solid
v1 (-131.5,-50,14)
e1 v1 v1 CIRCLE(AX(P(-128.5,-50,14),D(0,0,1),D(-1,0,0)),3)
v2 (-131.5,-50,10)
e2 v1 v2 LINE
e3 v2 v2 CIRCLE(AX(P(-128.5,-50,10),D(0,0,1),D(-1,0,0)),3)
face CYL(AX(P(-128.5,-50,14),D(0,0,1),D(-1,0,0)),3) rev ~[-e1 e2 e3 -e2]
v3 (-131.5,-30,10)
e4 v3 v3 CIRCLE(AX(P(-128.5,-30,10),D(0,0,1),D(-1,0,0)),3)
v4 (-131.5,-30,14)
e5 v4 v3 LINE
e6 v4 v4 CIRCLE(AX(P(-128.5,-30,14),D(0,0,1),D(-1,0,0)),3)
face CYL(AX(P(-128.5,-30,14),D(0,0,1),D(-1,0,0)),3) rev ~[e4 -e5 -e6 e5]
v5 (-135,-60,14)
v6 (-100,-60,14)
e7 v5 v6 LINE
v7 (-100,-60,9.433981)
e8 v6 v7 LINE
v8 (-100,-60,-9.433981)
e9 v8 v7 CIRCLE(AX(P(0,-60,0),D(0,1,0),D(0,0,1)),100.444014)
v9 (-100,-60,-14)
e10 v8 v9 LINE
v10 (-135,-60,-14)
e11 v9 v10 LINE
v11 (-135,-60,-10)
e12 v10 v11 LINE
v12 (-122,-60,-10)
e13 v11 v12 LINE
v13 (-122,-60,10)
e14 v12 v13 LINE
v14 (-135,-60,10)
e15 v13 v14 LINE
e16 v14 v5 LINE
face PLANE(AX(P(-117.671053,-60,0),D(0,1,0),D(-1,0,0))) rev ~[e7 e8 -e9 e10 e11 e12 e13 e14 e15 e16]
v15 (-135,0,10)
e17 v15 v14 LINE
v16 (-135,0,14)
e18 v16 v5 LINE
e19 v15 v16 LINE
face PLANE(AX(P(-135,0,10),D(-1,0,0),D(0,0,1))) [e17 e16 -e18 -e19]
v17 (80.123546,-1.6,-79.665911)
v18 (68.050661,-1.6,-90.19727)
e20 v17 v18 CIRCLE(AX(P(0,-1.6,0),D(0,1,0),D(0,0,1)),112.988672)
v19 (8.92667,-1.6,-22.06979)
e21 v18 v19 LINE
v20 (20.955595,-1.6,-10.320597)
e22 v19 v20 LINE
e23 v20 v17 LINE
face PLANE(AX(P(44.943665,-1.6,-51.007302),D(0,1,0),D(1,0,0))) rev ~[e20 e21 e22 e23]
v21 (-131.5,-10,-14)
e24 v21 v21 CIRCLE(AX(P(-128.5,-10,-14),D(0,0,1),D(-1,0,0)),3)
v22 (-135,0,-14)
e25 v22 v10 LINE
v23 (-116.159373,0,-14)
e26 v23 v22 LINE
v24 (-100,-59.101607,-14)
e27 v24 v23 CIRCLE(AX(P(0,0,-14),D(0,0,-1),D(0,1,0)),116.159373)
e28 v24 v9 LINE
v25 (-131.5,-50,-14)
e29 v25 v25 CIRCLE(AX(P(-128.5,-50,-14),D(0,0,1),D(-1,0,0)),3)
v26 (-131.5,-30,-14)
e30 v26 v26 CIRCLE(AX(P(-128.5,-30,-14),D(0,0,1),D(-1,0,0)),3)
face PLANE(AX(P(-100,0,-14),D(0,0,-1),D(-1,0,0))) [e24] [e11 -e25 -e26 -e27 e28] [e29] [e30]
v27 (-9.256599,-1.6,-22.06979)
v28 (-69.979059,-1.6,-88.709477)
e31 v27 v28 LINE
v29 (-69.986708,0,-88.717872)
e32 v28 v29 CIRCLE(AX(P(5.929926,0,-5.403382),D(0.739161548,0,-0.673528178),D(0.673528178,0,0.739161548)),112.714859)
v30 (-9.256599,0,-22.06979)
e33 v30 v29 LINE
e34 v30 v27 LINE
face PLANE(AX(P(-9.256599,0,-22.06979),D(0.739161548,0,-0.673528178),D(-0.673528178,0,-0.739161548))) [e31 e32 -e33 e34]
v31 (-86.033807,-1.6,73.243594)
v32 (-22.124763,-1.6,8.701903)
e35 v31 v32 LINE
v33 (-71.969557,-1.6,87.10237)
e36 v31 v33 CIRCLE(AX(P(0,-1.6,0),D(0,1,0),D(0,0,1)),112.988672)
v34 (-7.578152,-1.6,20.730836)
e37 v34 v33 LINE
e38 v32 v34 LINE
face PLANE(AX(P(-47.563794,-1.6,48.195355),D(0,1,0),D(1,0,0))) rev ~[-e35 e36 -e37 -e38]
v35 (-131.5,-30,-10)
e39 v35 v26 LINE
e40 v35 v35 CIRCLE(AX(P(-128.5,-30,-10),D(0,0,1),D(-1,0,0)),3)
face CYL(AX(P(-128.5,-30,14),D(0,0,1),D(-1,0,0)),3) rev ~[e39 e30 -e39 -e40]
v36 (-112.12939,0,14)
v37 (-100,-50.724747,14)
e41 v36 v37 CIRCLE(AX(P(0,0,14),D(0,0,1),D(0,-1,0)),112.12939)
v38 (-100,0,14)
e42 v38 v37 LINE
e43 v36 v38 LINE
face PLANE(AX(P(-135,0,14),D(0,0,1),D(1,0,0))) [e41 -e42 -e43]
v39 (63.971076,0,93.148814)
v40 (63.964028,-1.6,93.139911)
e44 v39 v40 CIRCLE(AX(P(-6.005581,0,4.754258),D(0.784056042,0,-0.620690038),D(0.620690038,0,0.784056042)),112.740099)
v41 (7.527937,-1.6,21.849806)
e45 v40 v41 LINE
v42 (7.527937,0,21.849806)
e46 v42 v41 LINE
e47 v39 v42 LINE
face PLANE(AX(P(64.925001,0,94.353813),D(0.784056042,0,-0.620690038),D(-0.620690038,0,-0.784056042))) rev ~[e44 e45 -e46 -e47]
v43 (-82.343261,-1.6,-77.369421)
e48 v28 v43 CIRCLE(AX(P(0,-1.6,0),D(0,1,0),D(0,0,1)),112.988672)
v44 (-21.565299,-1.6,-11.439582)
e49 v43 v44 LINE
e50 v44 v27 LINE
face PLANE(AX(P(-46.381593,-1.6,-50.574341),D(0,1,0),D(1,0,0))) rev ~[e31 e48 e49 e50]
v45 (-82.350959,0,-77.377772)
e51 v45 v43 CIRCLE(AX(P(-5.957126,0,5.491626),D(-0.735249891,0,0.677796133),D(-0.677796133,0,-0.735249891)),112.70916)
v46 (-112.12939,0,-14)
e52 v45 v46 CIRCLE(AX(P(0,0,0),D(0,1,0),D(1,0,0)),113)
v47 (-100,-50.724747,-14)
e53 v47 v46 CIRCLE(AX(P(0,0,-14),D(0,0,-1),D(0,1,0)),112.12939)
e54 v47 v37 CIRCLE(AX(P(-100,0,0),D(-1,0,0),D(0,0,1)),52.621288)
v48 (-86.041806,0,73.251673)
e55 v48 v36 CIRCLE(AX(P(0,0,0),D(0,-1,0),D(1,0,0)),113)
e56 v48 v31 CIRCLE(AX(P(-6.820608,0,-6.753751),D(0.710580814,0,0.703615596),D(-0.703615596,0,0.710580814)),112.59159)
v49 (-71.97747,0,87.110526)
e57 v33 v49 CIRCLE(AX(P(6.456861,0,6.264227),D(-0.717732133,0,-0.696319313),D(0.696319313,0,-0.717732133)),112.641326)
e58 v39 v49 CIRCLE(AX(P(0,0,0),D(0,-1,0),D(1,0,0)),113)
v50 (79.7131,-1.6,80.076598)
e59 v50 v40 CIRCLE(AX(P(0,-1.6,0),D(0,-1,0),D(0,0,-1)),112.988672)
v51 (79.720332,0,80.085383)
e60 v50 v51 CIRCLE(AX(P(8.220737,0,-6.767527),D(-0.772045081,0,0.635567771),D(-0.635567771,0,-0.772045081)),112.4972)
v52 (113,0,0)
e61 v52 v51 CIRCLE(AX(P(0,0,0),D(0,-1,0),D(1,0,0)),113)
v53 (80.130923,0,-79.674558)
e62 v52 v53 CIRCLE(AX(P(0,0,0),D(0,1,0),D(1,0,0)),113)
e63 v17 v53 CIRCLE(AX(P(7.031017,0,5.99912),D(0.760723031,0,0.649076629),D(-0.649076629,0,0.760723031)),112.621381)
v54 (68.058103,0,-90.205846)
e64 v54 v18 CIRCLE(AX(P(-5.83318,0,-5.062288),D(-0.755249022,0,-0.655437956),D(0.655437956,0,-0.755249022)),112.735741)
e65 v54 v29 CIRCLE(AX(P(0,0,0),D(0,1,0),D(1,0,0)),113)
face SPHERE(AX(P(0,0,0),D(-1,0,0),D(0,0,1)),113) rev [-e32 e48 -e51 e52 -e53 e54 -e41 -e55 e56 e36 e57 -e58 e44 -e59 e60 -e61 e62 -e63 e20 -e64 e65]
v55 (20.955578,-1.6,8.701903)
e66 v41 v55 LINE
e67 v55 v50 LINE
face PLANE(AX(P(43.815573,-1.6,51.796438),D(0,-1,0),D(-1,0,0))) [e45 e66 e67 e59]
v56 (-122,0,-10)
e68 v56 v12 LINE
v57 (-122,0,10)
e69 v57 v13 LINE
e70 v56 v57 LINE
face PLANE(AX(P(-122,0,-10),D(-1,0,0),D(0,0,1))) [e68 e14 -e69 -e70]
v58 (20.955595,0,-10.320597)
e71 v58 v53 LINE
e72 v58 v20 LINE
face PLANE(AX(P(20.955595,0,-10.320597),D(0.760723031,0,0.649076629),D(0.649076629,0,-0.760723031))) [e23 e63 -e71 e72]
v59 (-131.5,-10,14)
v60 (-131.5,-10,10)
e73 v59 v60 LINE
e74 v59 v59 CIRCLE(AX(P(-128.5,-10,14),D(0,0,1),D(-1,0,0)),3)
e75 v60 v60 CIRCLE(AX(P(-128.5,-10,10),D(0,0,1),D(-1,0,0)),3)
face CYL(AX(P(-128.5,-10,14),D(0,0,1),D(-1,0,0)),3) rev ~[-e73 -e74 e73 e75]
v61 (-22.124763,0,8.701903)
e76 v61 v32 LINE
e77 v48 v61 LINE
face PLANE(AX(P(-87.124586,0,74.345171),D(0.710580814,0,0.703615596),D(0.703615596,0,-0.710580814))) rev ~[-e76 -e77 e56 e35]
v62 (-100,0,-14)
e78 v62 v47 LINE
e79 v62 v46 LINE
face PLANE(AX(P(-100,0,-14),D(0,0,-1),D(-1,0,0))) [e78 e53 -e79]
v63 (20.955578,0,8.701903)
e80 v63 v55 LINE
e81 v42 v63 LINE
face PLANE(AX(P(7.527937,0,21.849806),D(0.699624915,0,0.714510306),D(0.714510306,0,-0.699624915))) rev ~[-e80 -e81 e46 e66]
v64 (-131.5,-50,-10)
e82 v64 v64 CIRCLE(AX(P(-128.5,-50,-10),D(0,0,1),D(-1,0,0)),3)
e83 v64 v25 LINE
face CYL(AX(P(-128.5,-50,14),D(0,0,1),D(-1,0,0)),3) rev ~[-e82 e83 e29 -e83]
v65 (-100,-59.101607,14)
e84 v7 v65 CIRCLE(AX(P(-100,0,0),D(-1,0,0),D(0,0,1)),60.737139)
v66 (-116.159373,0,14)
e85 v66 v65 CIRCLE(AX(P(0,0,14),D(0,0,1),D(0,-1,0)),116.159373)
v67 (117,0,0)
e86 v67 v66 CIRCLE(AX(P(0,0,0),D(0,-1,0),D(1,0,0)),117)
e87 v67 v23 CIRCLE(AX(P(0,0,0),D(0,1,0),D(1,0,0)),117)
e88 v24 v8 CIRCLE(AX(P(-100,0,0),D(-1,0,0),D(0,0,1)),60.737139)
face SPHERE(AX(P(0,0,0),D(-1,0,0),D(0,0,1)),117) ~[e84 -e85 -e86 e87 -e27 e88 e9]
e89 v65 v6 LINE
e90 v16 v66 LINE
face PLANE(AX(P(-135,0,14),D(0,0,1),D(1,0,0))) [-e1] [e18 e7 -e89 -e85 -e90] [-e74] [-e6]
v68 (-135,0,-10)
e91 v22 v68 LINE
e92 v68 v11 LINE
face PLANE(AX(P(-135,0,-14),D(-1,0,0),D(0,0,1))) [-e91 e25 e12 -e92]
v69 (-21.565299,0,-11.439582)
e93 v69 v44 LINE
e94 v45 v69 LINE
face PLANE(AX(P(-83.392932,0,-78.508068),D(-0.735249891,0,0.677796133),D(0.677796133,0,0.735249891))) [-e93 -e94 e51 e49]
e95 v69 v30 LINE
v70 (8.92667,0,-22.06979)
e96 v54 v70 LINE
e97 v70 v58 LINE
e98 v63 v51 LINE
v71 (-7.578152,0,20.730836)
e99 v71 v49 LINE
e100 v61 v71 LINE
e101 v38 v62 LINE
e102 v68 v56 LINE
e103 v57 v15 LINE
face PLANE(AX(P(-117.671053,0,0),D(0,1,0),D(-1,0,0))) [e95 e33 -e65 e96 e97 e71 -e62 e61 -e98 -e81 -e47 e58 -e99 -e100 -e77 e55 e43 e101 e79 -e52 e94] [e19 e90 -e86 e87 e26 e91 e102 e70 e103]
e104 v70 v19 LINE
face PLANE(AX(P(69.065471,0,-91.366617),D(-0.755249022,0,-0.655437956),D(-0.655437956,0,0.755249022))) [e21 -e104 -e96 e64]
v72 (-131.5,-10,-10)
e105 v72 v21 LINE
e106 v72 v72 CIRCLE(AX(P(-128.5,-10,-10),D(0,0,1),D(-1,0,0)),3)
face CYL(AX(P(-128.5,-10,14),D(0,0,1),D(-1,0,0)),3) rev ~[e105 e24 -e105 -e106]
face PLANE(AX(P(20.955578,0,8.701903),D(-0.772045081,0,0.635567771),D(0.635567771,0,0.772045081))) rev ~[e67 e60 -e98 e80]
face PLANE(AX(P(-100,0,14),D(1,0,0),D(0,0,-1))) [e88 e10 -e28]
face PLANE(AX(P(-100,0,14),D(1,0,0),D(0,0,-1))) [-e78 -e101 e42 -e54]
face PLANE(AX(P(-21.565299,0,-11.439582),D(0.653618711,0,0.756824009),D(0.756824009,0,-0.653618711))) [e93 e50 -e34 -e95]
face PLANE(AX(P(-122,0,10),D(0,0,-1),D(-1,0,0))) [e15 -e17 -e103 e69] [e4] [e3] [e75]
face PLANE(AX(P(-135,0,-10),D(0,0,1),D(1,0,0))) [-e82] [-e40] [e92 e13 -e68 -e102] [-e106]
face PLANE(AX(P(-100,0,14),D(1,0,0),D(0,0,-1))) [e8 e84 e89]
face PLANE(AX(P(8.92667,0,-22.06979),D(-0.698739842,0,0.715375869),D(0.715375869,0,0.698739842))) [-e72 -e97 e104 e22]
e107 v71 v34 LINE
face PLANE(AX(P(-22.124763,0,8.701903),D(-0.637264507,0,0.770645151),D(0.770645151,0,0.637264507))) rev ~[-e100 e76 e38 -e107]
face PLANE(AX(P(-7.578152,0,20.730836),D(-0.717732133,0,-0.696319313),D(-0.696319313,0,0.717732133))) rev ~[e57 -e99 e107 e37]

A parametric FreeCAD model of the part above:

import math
import FreeCAD as App
import Part
import Sketcher
Q = App.Units.Quantity

doc = App.newDocument("Part")
body = doc.addObject("PartDesign::Body", "Body")

# Sketch on XZ plane
sketch1 = doc.addObject("Sketcher::SketchObject", "Sketch")
body.addObject(sketch1)
sketch1.AttachmentSupport = (doc.XZ_Plane, [""])
sketch1.MapMode = "FlatFace"
sketch1.addGeometry(Part.ArcOfCircle(Part.Circle(App.Vector(0, 0, 0), App.Vector(0, 0, 1), 117), math.radians(0), math.radians(180)), False)
sketch1.addGeometry(Part.LineSegment(App.Vector(-117, 0, 0), App.Vector(-113, 0, 0)), False)
sketch1.addGeometry(Part.ArcOfCircle(Part.Circle(App.Vector(0, 0, 0), App.Vector(0, 0, 1), 113), math.radians(0), math.radians(180)), False)
sketch1.addGeometry(Part.LineSegment(App.Vector(113, 0, 0), App.Vector(117, 0, 0)), False)
sketch1.addConstraint(Sketcher.Constraint("Coincident", 0, 2, 1, 1))
sketch1.addConstraint(Sketcher.Constraint("Coincident", 1, 2, 2, 2))
sketch1.addConstraint(Sketcher.Constraint("Coincident", 2, 1, 3, 1))
sketch1.addConstraint(Sketcher.Constraint("Coincident", 3, 2, 0, 1))
sketch1.addConstraint(Sketcher.Constraint("Horizontal", 1))
sketch1.addConstraint(Sketcher.Constraint("Horizontal", 3))
sketch1.addConstraint(Sketcher.Constraint("Coincident", 0, 3, -1, 1))
sketch1.addConstraint(Sketcher.Constraint("Coincident", 2, 3, -1, 1))
sketch1.addConstraint(Sketcher.Constraint("PointOnObject", 0, 2, -1))
sketch1.addConstraint(Sketcher.Constraint("PointOnObject", 2, 1, -1))
sketch1.addConstraint(Sketcher.Constraint("Radius", 0, Q("117 mm")))
sketch1.addConstraint(Sketcher.Constraint("Radius", 2, Q("113 mm")))
revolution = doc.addObject("PartDesign::Revolution", "Revolution")
body.addObject(revolution)
revolution.Profile = sketch1
revolution.ReferenceAxis = (sketch1, ["H_Axis"])
revolution.Angle = 180

# Sketch on XZ plane
sketch2 = doc.addObject("Sketcher::SketchObject", "Sketch001")
body.addObject(sketch2)
sketch2.AttachmentSupport = (doc.XZ_Plane, [""])
sketch2.MapMode = "FlatFace"
sketch2.addGeometry(Part.LineSegment(App.Vector(-100, -14, 0), App.Vector(-100, 14, 0)), False)
sketch2.addGeometry(Part.LineSegment(App.Vector(-100, 14, 0), App.Vector(-135, 14, 0)), False)
sketch2.addGeometry(Part.LineSegment(App.Vector(-135, 14, 0), App.Vector(-135, 10, 0)), False)
sketch2.addGeometry(Part.LineSegment(App.Vector(-135, 10, 0), App.Vector(-122, 10, 0)), False)
sketch2.addGeometry(Part.LineSegment(App.Vector(-122, 10, 0), App.Vector(-122, -10, 0)), False)
sketch2.addGeometry(Part.LineSegment(App.Vector(-122, -10, 0), App.Vector(-135, -10, 0)), False)
sketch2.addGeometry(Part.LineSegment(App.Vector(-135, -10, 0), App.Vector(-135, -14, 0)), False)
sketch2.addGeometry(Part.LineSegment(App.Vector(-135, -14, 0), App.Vector(-100, -14, 0)), False)
sketch2.addConstraint(Sketcher.Constraint("Coincident", 0, 2, 1, 1))
sketch2.addConstraint(Sketcher.Constraint("Coincident", 1, 2, 2, 1))
sketch2.addConstraint(Sketcher.Constraint("Coincident", 2, 2, 3, 1))
sketch2.addConstraint(Sketcher.Constraint("Coincident", 3, 2, 4, 1))
sketch2.addConstraint(Sketcher.Constraint("Coincident", 4, 2, 5, 1))
sketch2.addConstraint(Sketcher.Constraint("Coincident", 5, 2, 6, 1))
sketch2.addConstraint(Sketcher.Constraint("Coincident", 6, 2, 7, 1))
sketch2.addConstraint(Sketcher.Constraint("Coincident", 7, 2, 0, 1))
sketch2.addConstraint(Sketcher.Constraint("Vertical", 0))
sketch2.addConstraint(Sketcher.Constraint("Horizontal", 1))
sketch2.addConstraint(Sketcher.Constraint("Vertical", 2))
sketch2.addConstraint(Sketcher.Constraint("Horizontal", 3))
sketch2.addConstraint(Sketcher.Constraint("Vertical", 4))
sketch2.addConstraint(Sketcher.Constraint("Horizontal", 5))
sketch2.addConstraint(Sketcher.Constraint("Vertical", 6))
sketch2.addConstraint(Sketcher.Constraint("Horizontal", 7))
sketch2.addConstraint(Sketcher.Constraint("Symmetric", 2, 2, 5, 2, -1))
sketch2.addConstraint(Sketcher.Constraint("Equal", 2, 6))
sketch2.addConstraint(Sketcher.Constraint("DistanceX", 1, 2, 1, 1, Q("35 mm")))
sketch2.addConstraint(Sketcher.Constraint("DistanceX", 3, 1, 3, 2, Q("13 mm")))
sketch2.addConstraint(Sketcher.Constraint("DistanceY", 0, 1, 0, 2, Q("28 mm")))
sketch2.addConstraint(Sketcher.Constraint("DistanceY", 2, 2, 2, 1, Q("4 mm")))
sketch2.addConstraint(Sketcher.Constraint("DistanceX", 0, 2, -1, 1, Q("100 mm")))
pad1 = doc.addObject("PartDesign::Pad", "Pad")
body.addObject(pad1)
pad1.Profile = sketch2
pad1.Length = 60

# Sketch on XY plane
sketch3 = doc.addObject("Sketcher::SketchObject", "Sketch002")
body.addObject(sketch3)
sketch3.AttachmentSupport = (doc.XY_Plane, [""])
sketch3.MapMode = "FlatFace"
sketch3.AttachmentOffset = App.Placement(App.Vector(0, 0, 14), App.Rotation())
sketch3.addGeometry(Part.Circle(App.Vector(-128.5, -10, 0), App.Vector(0, 0, 1), 3), False)
sketch3.addGeometry(Part.Circle(App.Vector(-128.5, -30, 0), App.Vector(0, 0, 1), 3), False)
sketch3.addGeometry(Part.Circle(App.Vector(-128.5, -50, 0), App.Vector(0, 0, 1), 3), False)
sketch3.addConstraint(Sketcher.Constraint("Equal", 0, 1))
sketch3.addConstraint(Sketcher.Constraint("Equal", 1, 2))
sketch3.addConstraint(Sketcher.Constraint("Vertical", 0, 3, 1, 3))
sketch3.addConstraint(Sketcher.Constraint("Vertical", 1, 3, 2, 3))
sketch3.addConstraint(Sketcher.Constraint("Diameter", 0, Q("6 mm")))
sketch3.addConstraint(Sketcher.Constraint("DistanceY", 0, 3, -1, 1, Q("10 mm")))
sketch3.addConstraint(Sketcher.Constraint("DistanceY", 1, 3, -1, 1, Q("30 mm")))
sketch3.addConstraint(Sketcher.Constraint("DistanceY", 2, 3, -1, 1, Q("50 mm")))
sketch3.addConstraint(Sketcher.Constraint("DistanceX", 0, 3, -1, 1, Q("128.5 mm")))
pocket1 = doc.addObject("PartDesign::Pocket", "Pocket")
body.addObject(pocket1)
pocket1.Profile = sketch3
pocket1.Type = "ThroughAll"

# Sketch on XZ plane
sketch4 = doc.addObject("Sketcher::SketchObject", "Sketch003")
body.addObject(sketch4)
sketch4.AttachmentSupport = (doc.XZ_Plane, [""])
sketch4.MapMode = "FlatFace"
sketch4.addGeometry(Part.ArcOfCircle(Part.Circle(App.Vector(0, 0, 0), App.Vector(0, 0, 1), 115), math.radians(129.63), math.radians(139.53)), False)
sketch4.addGeometry(Part.LineSegment(App.Vector(-73, 88, 0), App.Vector(-8, 21, 0)), False)
sketch4.addGeometry(Part.LineSegment(App.Vector(-8, 21, 0), App.Vector(-22, 9, 0)), False)
sketch4.addGeometry(Part.LineSegment(App.Vector(-22, 9, 0), App.Vector(-87, 74, 0)), False)
sketch4.addGeometry(Part.LineSegment(App.Vector(-83, -79, 0), App.Vector(-22, -11, 0)), False)
sketch4.addGeometry(Part.LineSegment(App.Vector(-22, -11, 0), App.Vector(-9, -22, 0)), False)
sketch4.addGeometry(Part.LineSegment(App.Vector(-9, -22, 0), App.Vector(-71, -90, 0)), False)
sketch4.addGeometry(Part.ArcOfCircle(Part.Circle(App.Vector(0, 0, 0), App.Vector(0, 0, 1), 115), math.radians(-136.73), math.radians(-128.32)), False)
sketch4.addGeometry(Part.LineSegment(App.Vector(69, -91, 0), App.Vector(9, -22, 0)), False)
sketch4.addGeometry(Part.LineSegment(App.Vector(9, -22, 0), App.Vector(21, -10, 0)), False)
sketch4.addGeometry(Part.LineSegment(App.Vector(21, -10, 0), App.Vector(81, -81, 0)), False)
sketch4.addGeometry(Part.ArcOfCircle(Part.Circle(App.Vector(0, 0, 0), App.Vector(0, 0, 1), 115), math.radians(-52.91), math.radians(-44.9)), False)
sketch4.addGeometry(Part.LineSegment(App.Vector(8, 22, 0), App.Vector(65, 94, 0)), False)
sketch4.addGeometry(Part.ArcOfCircle(Part.Circle(App.Vector(0, 0, 0), App.Vector(0, 0, 1), 115), math.radians(45.2), math.radians(55.47)), False)
sketch4.addGeometry(Part.LineSegment(App.Vector(81, 81, 0), App.Vector(21, 9, 0)), False)
sketch4.addGeometry(Part.LineSegment(App.Vector(21, 9, 0), App.Vector(8, 22, 0)), False)
sketch4.addConstraint(Sketcher.Constraint("Coincident", 0, 1, 1, 1))
sketch4.addConstraint(Sketcher.Constraint("Coincident", 1, 2, 2, 1))
sketch4.addConstraint(Sketcher.Constraint("Coincident", 2, 2, 3, 1))
sketch4.addConstraint(Sketcher.Constraint("Coincident", 3, 2, 0, 2))
sketch4.addConstraint(Sketcher.Constraint("Coincident", 4, 2, 5, 1))
sketch4.addConstraint(Sketcher.Constraint("Coincident", 5, 2, 6, 1))
sketch4.addConstraint(Sketcher.Constraint("Coincident", 6, 2, 7, 2))
sketch4.addConstraint(Sketcher.Constraint("Coincident", 7, 1, 4, 1))
sketch4.addConstraint(Sketcher.Constraint("Coincident", 8, 2, 9, 1))
sketch4.addConstraint(Sketcher.Constraint("Coincident", 9, 2, 10, 1))
sketch4.addConstraint(Sketcher.Constraint("Coincident", 10, 2, 11, 2))
sketch4.addConstraint(Sketcher.Constraint("Coincident", 11, 1, 8, 1))
sketch4.addConstraint(Sketcher.Constraint("Coincident", 12, 2, 13, 2))
sketch4.addConstraint(Sketcher.Constraint("Coincident", 13, 1, 14, 1))
sketch4.addConstraint(Sketcher.Constraint("Coincident", 14, 2, 15, 1))
sketch4.addConstraint(Sketcher.Constraint("Coincident", 15, 2, 12, 1))
sketch4.addConstraint(Sketcher.Constraint("Coincident", 13, 3, -1, 1))
sketch4.addConstraint(Sketcher.Constraint("Horizontal", 5, 2, 8, 2))
sketch4.addConstraint(Sketcher.Constraint("Horizontal", 2, 2, 14, 2))
sketch4.addConstraint(Sketcher.Constraint("Radius", 13, Q("114.533399 mm")))
sketch4.addConstraint(Sketcher.Constraint("DistanceX", -1, 1, 12, 2, Q("64.925001 mm")))
sketch4.addConstraint(Sketcher.Constraint("Radius", 0, Q("114.533364 mm")))
sketch4.addConstraint(Sketcher.Constraint("Radius", 7, Q("114.533437 mm")))
sketch4.addConstraint(Sketcher.Constraint("Radius", 11, Q("114.533456 mm")))
sketch4.addConstraint(Sketcher.Constraint("Distance", 14, Q("94.000402 mm")))
sketch4.addConstraint(Sketcher.Constraint("DistanceX", 4, 2, -1, 1, Q("21.565299 mm")))
sketch4.addConstraint(Sketcher.Constraint("DistanceX", 5, 2, -1, 1, Q("9.256599 mm")))
sketch4.addConstraint(Sketcher.Constraint("DistanceY", 4, 2, 0, 3, Q("11.439601 mm")))
sketch4.addConstraint(Sketcher.Constraint("DistanceX", 8, 2, 11, 1, Q("60.138801 mm")))
sketch4.addConstraint(Sketcher.Constraint("DistanceY", 9, 2, 14, 2, Q("19.0225 mm")))
sketch4.addConstraint(Sketcher.Constraint("DistanceX", 0, 3, 14, 2, Q("20.955599 mm")))
sketch4.addConstraint(Sketcher.Constraint("Distance", 9, Q("16.814832 mm")))
sketch4.addConstraint(Sketcher.Constraint("Distance", 12, Q("92.472991 mm")))
sketch4.addConstraint(Sketcher.Constraint("Distance", 15, Q("18.792788 mm")))
sketch4.addConstraint(Sketcher.Constraint("DistanceY", -1, 1, 0, 1, Q("88.214548 mm")))
sketch4.addConstraint(Sketcher.Constraint("DistanceY", -1, 1, 3, 2, Q("74.345171 mm")))
sketch4.addConstraint(Sketcher.Constraint("DistanceY", 5, 2, -1, 1, Q("22.06979 mm")))
sketch4.addConstraint(Sketcher.Constraint("DistanceX", 6, 2, -1, 1, Q("71.022068 mm")))
sketch4.addConstraint(Sketcher.Constraint("DistanceX", 7, 1, -1, 1, Q("83.392932 mm")))
sketch4.addConstraint(Sketcher.Constraint("DistanceX", -1, 1, 8, 2, Q("8.92667 mm")))
sketch4.addConstraint(Sketcher.Constraint("DistanceY", -1, 1, 13, 1, Q("81.274451 mm")))
sketch4.addConstraint(Sketcher.Constraint("DistanceX", 0, 1, 11, 3, Q("73.04851 mm")))
sketch4.addConstraint(Sketcher.Constraint("DistanceY", 0, 3, 0, 1, Q("88.214529 mm")))
sketch4.addConstraint(Sketcher.Constraint("DistanceY", 11, 3, 1, 2, Q("20.730791 mm")))
sketch4.addConstraint(Sketcher.Constraint("DistanceX", 1, 2, 0, 3, Q("7.578131 mm")))
sketch4.addConstraint(Sketcher.Constraint("DistanceX", 1, 2, 13, 3, Q("7.57815 mm")))
sketch4.addConstraint(Sketcher.Constraint("DistanceX", 2, 2, 1, 2, Q("14.546611 mm")))
sketch4.addConstraint(Sketcher.Constraint("DistanceY", 11, 3, 2, 2, Q("8.701858 mm")))
sketch4.addConstraint(Sketcher.Constraint("DistanceY", 7, 3, 2, 2, Q("8.701871 mm")))
sketch4.addConstraint(Sketcher.Constraint("DistanceX", 4, 2, 7, 3, Q("21.565331 mm")))
sketch4.addConstraint(Sketcher.Constraint("DistanceX", 5, 2, 10, 2, Q("90.386112 mm")))
pad2 = doc.addObject("PartDesign::Pad", "Pad001")
body.addObject(pad2)
pad2.Profile = sketch4
pad2.Length = 1.6

doc.recompute()
